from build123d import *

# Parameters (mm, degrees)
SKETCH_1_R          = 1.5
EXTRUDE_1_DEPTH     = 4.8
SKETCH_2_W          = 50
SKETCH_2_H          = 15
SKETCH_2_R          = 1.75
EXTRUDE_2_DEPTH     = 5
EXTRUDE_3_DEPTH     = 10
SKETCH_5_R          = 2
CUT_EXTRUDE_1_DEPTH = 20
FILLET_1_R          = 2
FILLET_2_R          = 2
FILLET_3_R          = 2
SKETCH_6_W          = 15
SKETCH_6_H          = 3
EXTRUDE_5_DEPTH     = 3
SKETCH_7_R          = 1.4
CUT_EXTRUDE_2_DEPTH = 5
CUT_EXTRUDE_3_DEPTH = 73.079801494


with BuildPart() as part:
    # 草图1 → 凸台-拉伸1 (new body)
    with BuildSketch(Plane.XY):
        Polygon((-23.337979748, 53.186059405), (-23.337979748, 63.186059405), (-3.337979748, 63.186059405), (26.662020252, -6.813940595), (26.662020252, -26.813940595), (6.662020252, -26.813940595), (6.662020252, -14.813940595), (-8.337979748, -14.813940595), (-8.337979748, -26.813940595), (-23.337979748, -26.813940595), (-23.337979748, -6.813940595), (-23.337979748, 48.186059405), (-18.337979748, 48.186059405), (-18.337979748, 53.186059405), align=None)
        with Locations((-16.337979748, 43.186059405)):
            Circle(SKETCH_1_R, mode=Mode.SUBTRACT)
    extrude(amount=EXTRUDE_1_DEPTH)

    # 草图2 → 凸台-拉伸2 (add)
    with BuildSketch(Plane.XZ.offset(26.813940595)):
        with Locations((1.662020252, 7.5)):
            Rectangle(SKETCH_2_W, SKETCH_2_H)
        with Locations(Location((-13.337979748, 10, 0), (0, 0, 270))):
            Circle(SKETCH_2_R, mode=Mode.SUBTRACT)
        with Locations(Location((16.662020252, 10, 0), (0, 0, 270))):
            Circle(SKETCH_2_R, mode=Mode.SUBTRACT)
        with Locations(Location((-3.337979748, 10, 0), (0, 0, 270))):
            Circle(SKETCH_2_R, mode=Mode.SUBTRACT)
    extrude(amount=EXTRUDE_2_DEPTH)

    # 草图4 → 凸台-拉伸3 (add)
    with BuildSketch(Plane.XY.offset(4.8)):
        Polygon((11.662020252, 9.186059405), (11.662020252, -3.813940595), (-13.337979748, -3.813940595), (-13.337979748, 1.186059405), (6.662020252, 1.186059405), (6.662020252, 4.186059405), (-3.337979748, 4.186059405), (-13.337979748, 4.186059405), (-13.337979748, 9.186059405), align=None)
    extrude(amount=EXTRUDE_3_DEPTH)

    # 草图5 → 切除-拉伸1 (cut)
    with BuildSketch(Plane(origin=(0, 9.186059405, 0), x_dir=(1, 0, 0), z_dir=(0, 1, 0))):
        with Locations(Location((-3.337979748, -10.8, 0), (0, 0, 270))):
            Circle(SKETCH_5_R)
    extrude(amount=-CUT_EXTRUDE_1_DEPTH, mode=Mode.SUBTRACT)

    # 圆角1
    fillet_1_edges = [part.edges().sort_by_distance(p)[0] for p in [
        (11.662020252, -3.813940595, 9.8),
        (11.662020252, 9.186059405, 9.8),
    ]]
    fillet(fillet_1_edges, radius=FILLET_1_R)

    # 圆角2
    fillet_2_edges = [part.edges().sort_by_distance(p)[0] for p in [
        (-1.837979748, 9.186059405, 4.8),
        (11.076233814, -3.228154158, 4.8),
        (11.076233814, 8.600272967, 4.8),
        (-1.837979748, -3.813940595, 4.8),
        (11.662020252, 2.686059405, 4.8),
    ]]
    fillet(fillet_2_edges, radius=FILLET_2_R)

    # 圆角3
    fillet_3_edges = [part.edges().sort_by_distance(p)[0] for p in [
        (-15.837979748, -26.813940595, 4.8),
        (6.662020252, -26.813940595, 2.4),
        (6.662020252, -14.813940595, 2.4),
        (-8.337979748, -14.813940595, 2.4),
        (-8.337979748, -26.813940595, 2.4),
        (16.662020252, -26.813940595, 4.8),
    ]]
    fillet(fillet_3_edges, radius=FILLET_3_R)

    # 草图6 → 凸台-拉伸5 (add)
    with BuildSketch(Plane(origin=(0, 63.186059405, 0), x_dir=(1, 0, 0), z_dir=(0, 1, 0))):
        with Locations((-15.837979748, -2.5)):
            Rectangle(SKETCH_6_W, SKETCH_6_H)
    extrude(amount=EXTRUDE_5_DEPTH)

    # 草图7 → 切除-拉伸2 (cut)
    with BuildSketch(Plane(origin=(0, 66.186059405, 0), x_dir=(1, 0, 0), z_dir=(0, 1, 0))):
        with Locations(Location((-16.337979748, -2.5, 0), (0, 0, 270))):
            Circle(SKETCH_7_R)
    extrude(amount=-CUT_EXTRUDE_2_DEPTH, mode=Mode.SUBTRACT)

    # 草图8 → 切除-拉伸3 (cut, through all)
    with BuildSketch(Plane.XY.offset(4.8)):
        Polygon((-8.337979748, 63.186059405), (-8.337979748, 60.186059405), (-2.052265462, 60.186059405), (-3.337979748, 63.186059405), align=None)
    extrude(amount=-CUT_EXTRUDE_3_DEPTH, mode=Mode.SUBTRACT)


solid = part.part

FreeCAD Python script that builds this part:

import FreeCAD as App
import Part
import Sketcher

V = App.Vector


def edges_at(feature, points):
    """Names of the edges that pass closest to the given points."""
    edges = feature.Shape.Edges
    near = lambda p: min(range(len(edges)), key=lambda i: edges[i].distToShape(Part.Vertex(*p))[0])
    return sorted({f"Edge{near(p) + 1}" for p in points})

doc = App.newDocument("Part")
body = doc.addObject("PartDesign::Body", "Body")

sketch1 = doc.addObject("Sketcher::SketchObject", "Sketch")
body.addObject(sketch1)
sketch1.AttachmentSupport = (doc.XY_Plane, [""])
sketch1.MapMode = "FlatFace"
sketch1.addGeometry([
    Part.LineSegment(V(-23.33798, 63.186059, 0), V(-23.33798, 53.186059, 0)),
    Part.LineSegment(V(-23.33798, 53.186059, 0), V(-18.33798, 53.186059, 0)),
    Part.LineSegment(V(-18.33798, 53.186059, 0), V(-18.33798, 48.186059, 0)),
    Part.LineSegment(V(-18.33798, 48.186059, 0), V(-23.33798, 48.186059, 0)),
    Part.LineSegment(V(-23.33798, 48.186059, 0), V(-23.33798, -26.813941, 0)),
    Part.LineSegment(V(-23.33798, -26.813941, 0), V(-8.33798, -26.813941, 0)),
    Part.LineSegment(V(-8.33798, -26.813941, 0), V(-8.33798, -14.813941, 0)),
    Part.LineSegment(V(-8.33798, -14.813941, 0), V(6.66202, -14.813941, 0)),
    Part.LineSegment(V(6.66202, -14.813941, 0), V(6.66202, -26.813941, 0)),
    Part.LineSegment(V(6.66202, -26.813941, 0), V(26.66202, -26.813941, 0)),
    Part.LineSegment(V(26.66202, -26.813941, 0), V(26.66202, -6.813941, 0)),
    Part.LineSegment(V(26.66202, -6.813941, 0), V(-3.33798, 63.186059, 0)),
    Part.LineSegment(V(-3.33798, 63.186059, 0), V(-23.33798, 63.186059, 0)),
    Part.Circle(V(-16.33798, 43.186059, 0), V(0, 0, 1), 1.5),
], False)
sketch1.addConstraint([
    Sketcher.Constraint("Coincident", 0, 2, 1, 1),
    Sketcher.Constraint("Coincident", 1, 2, 2, 1),
    Sketcher.Constraint("Coincident", 2, 2, 3, 1),
    Sketcher.Constraint("Coincident", 3, 2, 4, 1),
    Sketcher.Constraint("Coincident", 4, 2, 5, 1),
    Sketcher.Constraint("Coincident", 5, 2, 6, 1),
    Sketcher.Constraint("Coincident", 6, 2, 7, 1),
    Sketcher.Constraint("Coincident", 7, 2, 8, 1),
    Sketcher.Constraint("Coincident", 8, 2, 9, 1),
    Sketcher.Constraint("Coincident", 9, 2, 10, 1),
    Sketcher.Constraint("Coincident", 10, 2, 11, 1),
    Sketcher.Constraint("Coincident", 11, 2, 12, 1),
    Sketcher.Constraint("Coincident", 12, 2, 0, 1),
    Sketcher.Constraint("Vertical", 0),
    Sketcher.Constraint("Horizontal", 1),
    Sketcher.Constraint("Vertical", 2),
    Sketcher.Constraint("Horizontal", 3),
    Sketcher.Constraint("Vertical", 4),
    Sketcher.Constraint("Horizontal", 5),
    Sketcher.Constraint("Vertical", 6),
    Sketcher.Constraint("Horizontal", 7),
    Sketcher.Constraint("Vertical", 8),
    Sketcher.Constraint("Horizontal", 9),
    Sketcher.Constraint("Vertical", 10),
    Sketcher.Constraint("Horizontal", 12),
    Sketcher.Constraint("Horizontal", 5, 2, 8, 2),
    Sketcher.Constraint("Vertical", 0, 2, 3, 2),
    Sketcher.Constraint("Equal", 5, 7),
    Sketcher.Constraint("Equal", 9, 12),
    Sketcher.Constraint("Equal", 3, 2),
    Sketcher.Constraint("Equal", 12, 10),
    Sketcher.Constraint("Diameter", 13, 3.0),
    Sketcher.Constraint("DistanceX", 1, 1, 1, 2, 5.0),
    Sketcher.Constraint("DistanceX", 5, 1, 5, 2, 15.0),
    Sketcher.Constraint("DistanceX", 9, 1, 9, 2, 20.0),
    Sketcher.Constraint("DistanceY", 0, 2, 0, 1, 10.0),
    Sketcher.Constraint("DistanceY", 4, 2, 4, 1, 75.0),
    Sketcher.Constraint("DistanceY", 6, 1, 6, 2, 12.0),
    Sketcher.Constraint("DistanceX", 0, 2, 13, 3, 7.0),
    Sketcher.Constraint("DistanceY", 13, 3, 0, 2, 10.0),
    Sketcher.Constraint("DistanceX", 13, 3, -1, 1, 16.33798),
    Sketcher.Constraint("DistanceY", -1, 1, 13, 3, 43.186059),
])
pad1 = doc.addObject("PartDesign::Pad", "Pad")
body.addObject(pad1)
pad1.Profile = sketch1
pad1.Length = 4.8

sketch2 = doc.addObject("Sketcher::SketchObject", "Sketch001")
body.addObject(sketch2)
sketch2.AttachmentSupport = (doc.XZ_Plane, [""])
sketch2.MapMode = "FlatFace"
sketch2.AttachmentOffset = App.Placement(V(0, 0, 26.813941), App.Rotation())
sketch2.addGeometry([
    Part.LineSegment(V(-23.33798, 15, 0), V(-23.33798, 0, 0)),
    Part.LineSegment(V(-23.33798, 0, 0), V(26.66202, 0, 0)),
    Part.LineSegment(V(26.66202, 0, 0), V(26.66202, 15, 0)),
    Part.LineSegment(V(26.66202, 15, 0), V(-23.33798, 15, 0)),
    Part.Circle(V(-13.33798, 10, 0), V(0, 0, 1), 1.75),
    Part.Circle(V(-3.33798, 10, 0), V(0, 0, 1), 1.75),
    Part.Circle(V(16.66202, 10, 0), V(0, 0, 1), 1.75),
], False)
sketch2.addConstraint([
    Sketcher.Constraint("Coincident", 0, 2, 1, 1),
    Sketcher.Constraint("Coincident", 1, 2, 2, 1),
    Sketcher.Constraint("Coincident", 2, 2, 3, 1),
    Sketcher.Constraint("Coincident", 3, 2, 0, 1),
    Sketcher.Constraint("Vertical", 0),
    Sketcher.Constraint("Horizontal", 1),
    Sketcher.Constraint("Vertical", 2),
    Sketcher.Constraint("Horizontal", 3),
    Sketcher.Constraint("Equal", 4, 5),
    Sketcher.Constraint("Equal", 5, 6),
    Sketcher.Constraint("PointOnObject", 0, 2, -1),
    Sketcher.Constraint("Horizontal", 4, 3, 5, 3),
    Sketcher.Constraint("Horizontal", 5, 3, 6, 3),
    Sketcher.Constraint("Diameter", 4, 3.5),
    Sketcher.Constraint("DistanceX", 1, 1, 1, 2, 50.0),
    Sketcher.Constraint("DistanceY", 0, 2, 0, 1, 15.0),
    Sketcher.Constraint("DistanceY", -1, 1, 4, 3, 10.0),
    Sketcher.Constraint("DistanceX", 4, 3, 5, 3, 10.0),
    Sketcher.Constraint("DistanceX", 5, 3, 6, 3, 20.0),
    Sketcher.Constraint("DistanceX", 0, 2, 4, 3, 10.0),
    Sketcher.Constraint("DistanceX", 4, 3, -1, 1, 13.33798),
])
pad2 = doc.addObject("PartDesign::Pad", "Pad001")
body.addObject(pad2)
pad2.Profile = sketch2
pad2.Length = 5

sketch3 = doc.addObject("Sketcher::SketchObject", "Sketch002")
body.addObject(sketch3)
sketch3.AttachmentSupport = (doc.XY_Plane, [""])
sketch3.MapMode = "FlatFace"
sketch3.AttachmentOffset = App.Placement(V(0, 0, 4.8), App.Rotation())
sketch3.addGeometry([
    Part.LineSegment(V(11.66202, -3.813941, 0), V(11.66202, 9.186059, 0)),
    Part.LineSegment(V(11.66202, 9.186059, 0), V(-13.33798, 9.186059, 0)),
    Part.LineSegment(V(-13.33798, 9.186059, 0), V(-13.33798, 4.186059, 0)),
    Part.LineSegment(V(-13.33798, 4.186059, 0), V(6.66202, 4.186059, 0)),
    Part.LineSegment(V(6.66202, 4.186059, 0), V(6.66202, 1.186059, 0)),
    Part.LineSegment(V(6.66202, 1.186059, 0), V(-13.33798, 1.186059, 0)),
    Part.LineSegment(V(-13.33798, 1.186059, 0), V(-13.33798, -3.813941, 0)),
    Part.LineSegment(V(-13.33798, -3.813941, 0), V(11.66202, -3.813941, 0)),
], False)
sketch3.addConstraint([
    Sketcher.Constraint("Coincident", 0, 2, 1, 1),
    Sketcher.Constraint("Coincident", 1, 2, 2, 1),
    Sketcher.Constraint("Coincident", 2, 2, 3, 1),
    Sketcher.Constraint("Coincident", 3, 2, 4, 1),
    Sketcher.Constraint("Coincident", 4, 2, 5, 1),
    Sketcher.Constraint("Coincident", 5, 2, 6, 1),
    Sketcher.Constraint("Coincident", 6, 2, 7, 1),
    Sketcher.Constraint("Coincident", 7, 2, 0, 1),
    Sketcher.Constraint("Vertical", 0),
    Sketcher.Constraint("Horizontal", 1),
    Sketcher.Constraint("Vertical", 2),
    Sketcher.Constraint("Horizontal", 3),
    Sketcher.Constraint("Vertical", 4),
    Sketcher.Constraint("Horizontal", 5),
    Sketcher.Constraint("Vertical", 6),
    Sketcher.Constraint("Horizontal", 7),
    Sketcher.Constraint("Vertical", 2, 2, 5, 2),
    Sketcher.Constraint("Equal", 2, 6),
    Sketcher.Constraint("DistanceX", 1, 2, 1, 1, 25.0),
    Sketcher.Constraint("DistanceX", 3, 1, 3, 2, 20.0),
    Sketcher.Constraint("DistanceY", 0, 1, 0, 2, 13.0),
    Sketcher.Constraint("DistanceY", 2, 2, 2, 1, 5.0),
    Sketcher.Constraint("DistanceX", -1, 1, 0, 2, 11.66202),
    Sketcher.Constraint("DistanceY", -1, 1, 0, 2, 9.186059),
])
pad3 = doc.addObject("PartDesign::Pad", "Pad002")
body.addObject(pad3)
pad3.Profile = sketch3
pad3.Length = 10

sketch4 = doc.addObject("Sketcher::SketchObject", "Sketch003")
body.addObject(sketch4)
sketch4.AttachmentSupport = (doc.XZ_Plane, [""])
sketch4.MapMode = "FlatFace"
sketch4.AttachmentOffset = App.Placement(V(0, 0, -9.186059), App.Rotation())
sketch4.addGeometry(Part.Circle(V(-3.33798, 10.8, 0), V(0, 0, 1), 2), False)
sketch4.addConstraint([
    Sketcher.Constraint("Diameter", 0, 4.0),
    Sketcher.Constraint("DistanceY", -1, 1, 0, 3, 10.8),
    Sketcher.Constraint("DistanceX", 0, 3, -1, 1, 3.33798),
])
pocket1 = doc.addObject("PartDesign::Pocket", "Pocket")
body.addObject(pocket1)
pocket1.Profile = sketch4
pocket1.Length = 20
pocket1.Reversed = True
doc.recompute()

fillet = doc.addObject("PartDesign::Fillet", "Fillet")
body.addObject(fillet)
fillet.Base = (pocket1, edges_at(pocket1, [(11.662, -3.814, 9.8), (11.662, 9.186, 9.8)]))
fillet.Radius = 2
doc.recompute()

fillet2 = doc.addObject("PartDesign::Fillet", "Fillet001")
body.addObject(fillet2)
fillet2.Base = (fillet, edges_at(fillet, [
    (-1.838, 9.186, 4.8),
    (11.076, -3.228, 4.8),
    (11.076, 8.6, 4.8),
    (-1.838, -3.814, 4.8),
    (11.662, 2.686, 4.8),
]))
fillet2.Radius = 2
doc.recompute()

fillet3 = doc.addObject("PartDesign::Fillet", "Fillet002")
body.addObject(fillet3)
fillet3.Base = (fillet2, edges_at(fillet2, [
    (-15.838, -26.814, 4.8),
    (6.662, -26.814, 2.4),
    (6.662, -14.814, 2.4),
    (-8.338, -14.814, 2.4),
    (-8.338, -26.814, 2.4),
    (16.662, -26.814, 4.8),
]))
fillet3.Radius = 2

sketch5 = doc.addObject("Sketcher::SketchObject", "Sketch004")
body.addObject(sketch5)
sketch5.AttachmentSupport = (doc.XZ_Plane, [""])
sketch5.MapMode = "FlatFace"
sketch5.AttachmentOffset = App.Placement(V(0, 0, -63.186059), App.Rotation())
sketch5.addGeometry([
    Part.LineSegment(V(-23.33798, 1, 0), V(-23.33798, 4, 0)),
    Part.LineSegment(V(-23.33798, 4, 0), V(-8.33798, 4, 0)),
    Part.LineSegment(V(-8.33798, 4, 0), V(-8.33798, 1, 0)),
    Part.LineSegment(V(-8.33798, 1, 0), V(-23.33798, 1, 0)),
], False)
sketch5.addConstraint([
    Sketcher.Constraint("Coincident", 0, 2, 1, 1),
    Sketcher.Constraint("Coincident", 1, 2, 2, 1),
    Sketcher.Constraint("Coincident", 2, 2, 3, 1),
    Sketcher.Constraint("Coincident", 3, 2, 0, 1),
    Sketcher.Constraint("Vertical", 0),
    Sketcher.Constraint("Horizontal", 1),
    Sketcher.Constraint("Vertical", 2),
    Sketcher.Constraint("Horizontal", 3),
    Sketcher.Constraint("DistanceX", 1, 1, 1, 2, 15.0),
    Sketcher.Constraint("DistanceY", 0, 1, 0, 2, 3.0),
    Sketcher.Constraint("DistanceY", -1, 1, 0, 2, 4.0),
    Sketcher.Constraint("DistanceX", 0, 2, -1, 1, 23.33798),
])
pad4 = doc.addObject("PartDesign::Pad", "Pad003")
body.addObject(pad4)
pad4.Profile = sketch5
pad4.Length = 3
pad4.Reversed = True

sketch6 = doc.addObject("Sketcher::SketchObject", "Sketch005")
body.addObject(sketch6)
sketch6.AttachmentSupport = (doc.XZ_Plane, [""])
sketch6.MapMode = "FlatFace"
sketch6.AttachmentOffset = App.Placement(V(0, 0, -66.186059), App.Rotation())
sketch6.addGeometry(Part.Circle(V(-16.33798, 2.5, 0), V(0, 0, 1), 1.4), False)
sketch6.addConstraint([
    Sketcher.Constraint("Diameter", 0, 2.8),
    Sketcher.Constraint("DistanceY", -1, 1, 0, 3, 2.5),
    Sketcher.Constraint("DistanceX", 0, 3, -1, 1, 16.33798),
])
pocket2 = doc.addObject("PartDesign::Pocket", "Pocket001")
body.addObject(pocket2)
pocket2.Profile = sketch6
pocket2.Length = 5
pocket2.Reversed = True

sketch7 = doc.addObject("Sketcher::SketchObject", "Sketch006")
body.addObject(sketch7)
sketch7.AttachmentSupport = (doc.XY_Plane, [""])
sketch7.MapMode = "FlatFace"
sketch7.AttachmentOffset = App.Placement(V(0, 0, 4.8), App.Rotation())
sketch7.addGeometry([
    Part.LineSegment(V(-8.33798, 63.186059, 0), V(-8.33798, 60.186059, 0)),
    Part.LineSegment(V(-8.33798, 60.186059, 0), V(-2.052265, 60.186059, 0)),
    Part.LineSegment(V(-2.052265, 60.186059, 0), V(-3.33798, 63.186059, 0)),
    Part.LineSegment(V(-3.33798, 63.186059, 0), V(-8.33798, 63.186059, 0)),
], False)
sketch7.addConstraint([
    Sketcher.Constraint("Coincident", 0, 2, 1, 1),
    Sketcher.Constraint("Coincident", 1, 2, 2, 1),
    Sketcher.Constraint("Coincident", 2, 2, 3, 1),
    Sketcher.Constraint("Coincident", 3, 2, 0, 1),
    Sketcher.Constraint("Vertical", 0),
    Sketcher.Constraint("Horizontal", 1),
    Sketcher.Constraint("Horizontal", 3),
    Sketcher.Constraint("DistanceX", 3, 2, 3, 1, 5.0),
    Sketcher.Constraint("DistanceY", 0, 2, 0, 1, 3.0),
    Sketcher.Constraint("DistanceX", 1, 1, 1, 2, 6.285714),
    Sketcher.Constraint("DistanceX", 0, 2, -1, 1, 8.33798),
    Sketcher.Constraint("DistanceY", -1, 1, 0, 2, 60.186059),
])
pocket3 = doc.addObject("PartDesign::Pocket", "Pocket002")
body.addObject(pocket3)
pocket3.Profile = sketch7
pocket3.Type = "ThroughAll"

doc.recompute()
